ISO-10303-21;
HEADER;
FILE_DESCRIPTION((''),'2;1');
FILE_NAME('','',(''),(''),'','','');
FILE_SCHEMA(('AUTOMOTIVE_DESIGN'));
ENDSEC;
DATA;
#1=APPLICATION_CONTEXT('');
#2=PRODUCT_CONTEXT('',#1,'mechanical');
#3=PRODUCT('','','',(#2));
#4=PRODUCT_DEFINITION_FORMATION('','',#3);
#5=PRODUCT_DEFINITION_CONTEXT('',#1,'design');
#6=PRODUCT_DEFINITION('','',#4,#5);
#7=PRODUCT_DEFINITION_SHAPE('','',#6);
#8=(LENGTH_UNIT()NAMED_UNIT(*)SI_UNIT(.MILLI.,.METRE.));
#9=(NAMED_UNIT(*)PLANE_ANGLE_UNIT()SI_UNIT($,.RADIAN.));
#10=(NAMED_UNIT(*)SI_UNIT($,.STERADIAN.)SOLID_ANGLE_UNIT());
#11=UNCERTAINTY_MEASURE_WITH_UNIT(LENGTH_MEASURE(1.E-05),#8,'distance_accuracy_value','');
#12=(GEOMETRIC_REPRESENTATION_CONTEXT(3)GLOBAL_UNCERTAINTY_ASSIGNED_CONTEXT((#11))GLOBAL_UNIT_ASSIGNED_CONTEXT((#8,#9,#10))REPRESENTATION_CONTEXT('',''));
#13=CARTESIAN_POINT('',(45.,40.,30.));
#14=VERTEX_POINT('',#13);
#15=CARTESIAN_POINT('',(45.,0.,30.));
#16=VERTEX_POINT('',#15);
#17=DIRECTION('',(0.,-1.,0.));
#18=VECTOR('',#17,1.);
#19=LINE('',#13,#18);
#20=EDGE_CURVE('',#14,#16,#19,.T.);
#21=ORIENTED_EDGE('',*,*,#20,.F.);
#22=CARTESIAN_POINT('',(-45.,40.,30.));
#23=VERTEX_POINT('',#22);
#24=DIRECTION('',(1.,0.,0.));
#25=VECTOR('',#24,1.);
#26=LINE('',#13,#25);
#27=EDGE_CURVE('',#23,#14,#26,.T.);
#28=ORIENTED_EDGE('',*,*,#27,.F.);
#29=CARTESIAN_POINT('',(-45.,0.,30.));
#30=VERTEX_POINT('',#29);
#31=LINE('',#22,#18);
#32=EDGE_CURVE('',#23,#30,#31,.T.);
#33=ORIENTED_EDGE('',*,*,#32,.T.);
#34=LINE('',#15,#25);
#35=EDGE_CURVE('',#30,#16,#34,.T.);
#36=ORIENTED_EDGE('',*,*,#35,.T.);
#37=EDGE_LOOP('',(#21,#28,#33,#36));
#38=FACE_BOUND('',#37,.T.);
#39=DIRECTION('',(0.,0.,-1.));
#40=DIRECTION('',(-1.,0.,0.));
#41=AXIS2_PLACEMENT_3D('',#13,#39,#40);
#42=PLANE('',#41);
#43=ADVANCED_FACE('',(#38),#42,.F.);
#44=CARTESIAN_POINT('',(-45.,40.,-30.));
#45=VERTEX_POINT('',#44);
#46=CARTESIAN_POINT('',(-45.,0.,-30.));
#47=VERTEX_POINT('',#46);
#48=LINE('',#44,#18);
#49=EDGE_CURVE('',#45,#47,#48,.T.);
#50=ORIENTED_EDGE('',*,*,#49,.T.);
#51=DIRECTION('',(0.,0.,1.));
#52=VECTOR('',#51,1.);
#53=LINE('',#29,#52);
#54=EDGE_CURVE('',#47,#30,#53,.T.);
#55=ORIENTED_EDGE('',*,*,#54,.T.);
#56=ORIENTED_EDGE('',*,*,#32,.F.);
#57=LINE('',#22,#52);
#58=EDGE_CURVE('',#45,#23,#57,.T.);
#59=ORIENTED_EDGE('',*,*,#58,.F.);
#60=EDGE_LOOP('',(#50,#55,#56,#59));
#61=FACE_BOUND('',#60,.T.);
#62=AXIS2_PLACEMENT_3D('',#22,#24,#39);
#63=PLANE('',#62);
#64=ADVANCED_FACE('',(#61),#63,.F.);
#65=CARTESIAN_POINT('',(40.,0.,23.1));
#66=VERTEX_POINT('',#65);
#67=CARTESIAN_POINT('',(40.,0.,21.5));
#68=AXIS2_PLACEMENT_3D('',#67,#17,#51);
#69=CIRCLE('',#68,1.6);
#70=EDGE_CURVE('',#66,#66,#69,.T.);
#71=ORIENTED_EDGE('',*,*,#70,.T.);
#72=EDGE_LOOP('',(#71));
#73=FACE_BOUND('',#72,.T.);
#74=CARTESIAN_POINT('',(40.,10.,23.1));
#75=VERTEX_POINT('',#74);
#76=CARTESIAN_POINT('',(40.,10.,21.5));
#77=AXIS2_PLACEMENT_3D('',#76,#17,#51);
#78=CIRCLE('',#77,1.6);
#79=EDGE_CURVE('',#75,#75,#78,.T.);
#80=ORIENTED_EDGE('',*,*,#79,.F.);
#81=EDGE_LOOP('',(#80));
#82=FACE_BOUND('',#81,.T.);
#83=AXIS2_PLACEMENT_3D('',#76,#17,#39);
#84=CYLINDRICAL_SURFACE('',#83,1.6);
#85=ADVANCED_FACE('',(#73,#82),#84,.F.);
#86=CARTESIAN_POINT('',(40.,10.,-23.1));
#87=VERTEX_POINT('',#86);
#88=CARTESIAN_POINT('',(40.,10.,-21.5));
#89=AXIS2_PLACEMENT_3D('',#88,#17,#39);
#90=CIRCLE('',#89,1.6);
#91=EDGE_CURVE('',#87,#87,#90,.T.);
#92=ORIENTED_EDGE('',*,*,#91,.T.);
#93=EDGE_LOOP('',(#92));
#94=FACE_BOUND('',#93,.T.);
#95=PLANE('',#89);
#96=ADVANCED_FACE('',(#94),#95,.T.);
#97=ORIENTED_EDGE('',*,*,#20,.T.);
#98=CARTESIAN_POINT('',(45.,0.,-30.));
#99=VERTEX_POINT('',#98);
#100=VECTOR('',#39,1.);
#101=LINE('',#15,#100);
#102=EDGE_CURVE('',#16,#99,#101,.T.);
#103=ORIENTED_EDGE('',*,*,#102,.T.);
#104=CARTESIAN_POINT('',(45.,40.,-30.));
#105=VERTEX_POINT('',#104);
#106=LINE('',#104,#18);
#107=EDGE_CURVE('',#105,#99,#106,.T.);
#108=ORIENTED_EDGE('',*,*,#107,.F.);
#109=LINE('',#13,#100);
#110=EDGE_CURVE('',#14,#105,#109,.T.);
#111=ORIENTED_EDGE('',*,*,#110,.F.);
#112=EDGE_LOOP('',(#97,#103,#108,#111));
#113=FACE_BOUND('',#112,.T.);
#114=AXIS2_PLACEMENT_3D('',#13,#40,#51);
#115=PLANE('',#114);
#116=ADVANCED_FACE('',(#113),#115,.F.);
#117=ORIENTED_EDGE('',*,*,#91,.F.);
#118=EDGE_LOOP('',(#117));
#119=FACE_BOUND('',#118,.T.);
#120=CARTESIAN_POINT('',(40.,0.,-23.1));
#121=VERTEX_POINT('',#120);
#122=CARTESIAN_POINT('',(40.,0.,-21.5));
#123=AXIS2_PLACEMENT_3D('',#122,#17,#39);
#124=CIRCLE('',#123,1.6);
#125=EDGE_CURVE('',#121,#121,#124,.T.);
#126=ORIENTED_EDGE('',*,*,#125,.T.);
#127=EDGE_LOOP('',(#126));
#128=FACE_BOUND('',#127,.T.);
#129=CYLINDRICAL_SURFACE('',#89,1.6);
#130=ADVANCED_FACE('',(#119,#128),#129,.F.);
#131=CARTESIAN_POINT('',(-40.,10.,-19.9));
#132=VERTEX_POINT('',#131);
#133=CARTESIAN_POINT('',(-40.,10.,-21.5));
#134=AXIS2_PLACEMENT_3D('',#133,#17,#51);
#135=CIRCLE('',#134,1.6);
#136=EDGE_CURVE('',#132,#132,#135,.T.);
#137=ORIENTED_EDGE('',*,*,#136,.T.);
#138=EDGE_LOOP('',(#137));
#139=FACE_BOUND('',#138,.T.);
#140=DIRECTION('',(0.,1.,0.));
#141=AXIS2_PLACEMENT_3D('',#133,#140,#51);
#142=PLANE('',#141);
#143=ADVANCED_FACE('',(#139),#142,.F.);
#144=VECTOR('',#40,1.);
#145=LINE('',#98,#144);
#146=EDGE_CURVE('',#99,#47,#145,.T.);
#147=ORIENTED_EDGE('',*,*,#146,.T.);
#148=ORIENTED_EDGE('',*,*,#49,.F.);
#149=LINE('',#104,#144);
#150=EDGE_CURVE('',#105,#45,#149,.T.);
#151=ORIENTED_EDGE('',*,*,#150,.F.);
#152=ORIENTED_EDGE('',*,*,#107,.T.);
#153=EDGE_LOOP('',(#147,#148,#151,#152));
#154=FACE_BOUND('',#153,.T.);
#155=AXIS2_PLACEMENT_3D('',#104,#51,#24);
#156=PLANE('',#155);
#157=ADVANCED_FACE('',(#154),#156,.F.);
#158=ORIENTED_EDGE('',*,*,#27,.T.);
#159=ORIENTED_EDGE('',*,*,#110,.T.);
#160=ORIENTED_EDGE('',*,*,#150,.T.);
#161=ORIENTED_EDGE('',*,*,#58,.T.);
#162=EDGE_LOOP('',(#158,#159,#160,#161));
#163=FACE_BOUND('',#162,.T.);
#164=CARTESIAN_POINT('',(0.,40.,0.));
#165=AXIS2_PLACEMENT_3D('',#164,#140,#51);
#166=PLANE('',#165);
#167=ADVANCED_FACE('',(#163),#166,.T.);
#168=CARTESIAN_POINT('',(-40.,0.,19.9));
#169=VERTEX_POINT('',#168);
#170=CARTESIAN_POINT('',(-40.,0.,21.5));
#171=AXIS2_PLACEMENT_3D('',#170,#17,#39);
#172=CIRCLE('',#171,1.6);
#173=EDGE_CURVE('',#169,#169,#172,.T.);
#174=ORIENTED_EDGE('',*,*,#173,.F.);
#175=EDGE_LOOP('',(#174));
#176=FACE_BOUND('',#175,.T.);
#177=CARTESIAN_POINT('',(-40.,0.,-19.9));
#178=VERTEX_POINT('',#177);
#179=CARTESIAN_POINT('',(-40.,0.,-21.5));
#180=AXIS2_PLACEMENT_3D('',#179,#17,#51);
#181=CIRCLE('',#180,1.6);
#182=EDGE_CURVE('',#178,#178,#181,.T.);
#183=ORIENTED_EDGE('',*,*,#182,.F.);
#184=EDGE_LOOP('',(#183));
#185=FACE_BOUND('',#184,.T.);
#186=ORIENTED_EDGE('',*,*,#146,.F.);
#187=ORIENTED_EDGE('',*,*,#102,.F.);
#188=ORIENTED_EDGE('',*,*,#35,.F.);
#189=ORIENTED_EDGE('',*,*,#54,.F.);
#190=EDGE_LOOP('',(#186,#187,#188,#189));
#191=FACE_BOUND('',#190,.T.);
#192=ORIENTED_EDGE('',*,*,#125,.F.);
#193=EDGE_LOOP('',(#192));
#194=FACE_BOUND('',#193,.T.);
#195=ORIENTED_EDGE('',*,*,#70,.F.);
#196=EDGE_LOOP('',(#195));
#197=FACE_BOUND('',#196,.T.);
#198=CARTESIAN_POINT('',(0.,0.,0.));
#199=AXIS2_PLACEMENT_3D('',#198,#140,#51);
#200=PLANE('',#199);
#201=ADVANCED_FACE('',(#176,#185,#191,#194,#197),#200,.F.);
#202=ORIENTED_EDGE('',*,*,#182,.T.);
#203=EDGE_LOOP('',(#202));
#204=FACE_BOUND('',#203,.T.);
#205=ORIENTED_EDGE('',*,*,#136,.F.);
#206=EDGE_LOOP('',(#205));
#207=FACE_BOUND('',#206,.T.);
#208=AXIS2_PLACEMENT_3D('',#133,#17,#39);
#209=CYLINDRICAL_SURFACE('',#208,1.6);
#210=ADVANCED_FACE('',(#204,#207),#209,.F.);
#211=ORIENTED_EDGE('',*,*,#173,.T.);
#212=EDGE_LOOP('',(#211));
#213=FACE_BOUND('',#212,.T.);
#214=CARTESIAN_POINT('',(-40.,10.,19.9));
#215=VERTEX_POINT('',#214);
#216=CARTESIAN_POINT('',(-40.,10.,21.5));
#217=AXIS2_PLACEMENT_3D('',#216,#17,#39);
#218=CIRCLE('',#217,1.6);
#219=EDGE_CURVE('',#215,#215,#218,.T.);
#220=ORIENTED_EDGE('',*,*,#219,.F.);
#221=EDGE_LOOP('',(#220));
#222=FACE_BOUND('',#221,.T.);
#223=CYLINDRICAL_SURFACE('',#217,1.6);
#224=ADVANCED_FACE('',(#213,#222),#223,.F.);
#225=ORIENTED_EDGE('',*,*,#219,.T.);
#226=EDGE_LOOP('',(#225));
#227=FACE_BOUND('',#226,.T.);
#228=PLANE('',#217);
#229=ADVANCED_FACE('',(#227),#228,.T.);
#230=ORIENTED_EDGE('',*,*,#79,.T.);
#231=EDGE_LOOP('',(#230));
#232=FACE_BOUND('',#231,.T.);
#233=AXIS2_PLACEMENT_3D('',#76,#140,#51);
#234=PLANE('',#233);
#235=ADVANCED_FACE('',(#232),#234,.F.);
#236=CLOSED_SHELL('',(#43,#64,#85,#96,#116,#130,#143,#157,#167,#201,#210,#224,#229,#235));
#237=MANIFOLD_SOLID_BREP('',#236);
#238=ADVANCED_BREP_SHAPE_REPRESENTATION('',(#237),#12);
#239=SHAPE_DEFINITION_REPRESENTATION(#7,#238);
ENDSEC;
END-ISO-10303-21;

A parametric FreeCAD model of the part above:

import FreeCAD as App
import Part
import Sketcher
from FreeCAD import Vector


def add_polygon(sketch, points):
    """Adds a closed chain of lines whose ends are joined by coincident constraints."""
    first, n = sketch.GeometryCount, len(points)
    for a, b in zip(points, points[1:] + points[:1]):
        sketch.addGeometry(Part.LineSegment(App.Vector(*a, 0), App.Vector(*b, 0)), False)
    for i in range(n):
        sketch.addConstraint(Sketcher.Constraint("Coincident", first + i, 2, first + (i + 1) % n, 1))

doc = App.newDocument("Part")
body = doc.addObject("PartDesign::Body", "Body")

# Sketch on XZ plane
sketch1 = body.newObject("Sketcher::SketchObject", "Sketch")
sketch1.AttachmentSupport = (doc.getObject("XZ_Plane"), [""])
sketch1.MapMode = "FlatFace"
add_polygon(sketch1, [(-45, -30), (-45, 30), (45, 30), (45, -30)])  # lines 0-3
sketch1.addConstraint(Sketcher.Constraint("Vertical", 0))
sketch1.addConstraint(Sketcher.Constraint("Horizontal", 1))
sketch1.addConstraint(Sketcher.Constraint("Vertical", 2))
sketch1.addConstraint(Sketcher.Constraint("Horizontal", 3))
sketch1.addConstraint(Sketcher.Constraint("Symmetric", 0, 2, 2, 2, -1, 1))
sketch1.addConstraint(Sketcher.Constraint("DistanceX", 1, 1, 1, 2, 90.0))
sketch1.addConstraint(Sketcher.Constraint("DistanceY", 0, 1, 0, 2, 60.0))
pad1 = body.newObject("PartDesign::Pad", "Pad")
pad1.Profile = sketch1
pad1.Length = 40
pad1.Reversed = True

# Sketch on XZ plane
sketch2 = body.newObject("Sketcher::SketchObject", "Sketch001")
sketch2.AttachmentSupport = (doc.getObject("XZ_Plane"), [""])
sketch2.MapMode = "FlatFace"
sketch2.addGeometry(Part.Circle(Vector(-40, 21.5, 0), Vector(0, 0, 1), 1.6), False)
sketch2.addGeometry(Part.Circle(Vector(40, 21.5, 0), Vector(0, 0, 1), 1.6), False)
sketch2.addGeometry(Part.Circle(Vector(40, -21.5, 0), Vector(0, 0, 1), 1.6), False)
sketch2.addGeometry(Part.Circle(Vector(-40, -21.5, 0), Vector(0, 0, 1), 1.6), False)
sketch2.addConstraint(Sketcher.Constraint("Equal", 0, 1))
sketch2.addConstraint(Sketcher.Constraint("Equal", 1, 2))
sketch2.addConstraint(Sketcher.Constraint("Equal", 2, 3))
sketch2.addConstraint(Sketcher.Constraint("Symmetric", 0, 3, 2, 3, -1, 1))
sketch2.addConstraint(Sketcher.Constraint("Symmetric", 1, 3, 3, 3, -1, 1))
sketch2.addConstraint(Sketcher.Constraint("Symmetric", 0, 3, 1, 3, -2))
sketch2.addConstraint(Sketcher.Constraint("Diameter", 0, 3.2))
sketch2.addConstraint(Sketcher.Constraint("DistanceX", 0, 3, -1, 1, 40.0))
sketch2.addConstraint(Sketcher.Constraint("DistanceY", 2, 3, 1, 3, 43.0))
pocket1 = body.newObject("PartDesign::Pocket", "Pocket")
pocket1.Profile = sketch2
pocket1.Length = 10

doc.recompute()
